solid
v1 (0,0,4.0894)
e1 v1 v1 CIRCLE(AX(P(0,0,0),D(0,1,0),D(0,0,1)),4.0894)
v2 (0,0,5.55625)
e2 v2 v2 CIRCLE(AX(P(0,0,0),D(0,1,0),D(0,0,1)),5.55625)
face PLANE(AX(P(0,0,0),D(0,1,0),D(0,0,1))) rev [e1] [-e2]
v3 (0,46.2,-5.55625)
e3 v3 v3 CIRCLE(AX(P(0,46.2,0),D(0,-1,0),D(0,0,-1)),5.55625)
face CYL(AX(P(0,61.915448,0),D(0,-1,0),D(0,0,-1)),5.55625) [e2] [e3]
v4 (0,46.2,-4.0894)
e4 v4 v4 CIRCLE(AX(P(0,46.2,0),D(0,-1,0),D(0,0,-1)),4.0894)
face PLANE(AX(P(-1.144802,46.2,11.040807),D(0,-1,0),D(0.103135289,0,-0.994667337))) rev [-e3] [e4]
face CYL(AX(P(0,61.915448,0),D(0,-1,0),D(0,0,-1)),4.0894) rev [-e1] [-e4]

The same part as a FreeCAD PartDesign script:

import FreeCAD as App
import Part
import Sketcher
Q = App.Units.Quantity

doc = App.newDocument("Part")
params = doc.addObject("Spreadsheet::Sheet", "Params")
for row, (alias, value) in enumerate([
    ("sketch1_diameter", "0.4375 in"),
    ("sketch1_diameter2", "0.322 in"),
    ("pad1_length", "46.2 mm"),
], start=1):
    params.set(f"A{row}", alias)
    params.set(f"B{row}", "=" + value)
    params.setAlias(f"B{row}", alias)

body = doc.addObject("PartDesign::Body", "Body")

# Sketch on XZ plane
sketch1 = body.newObject("Sketcher::SketchObject", "Sketch")
sketch1.AttachmentSupport = (doc.getObject("XZ_Plane"), [""])
sketch1.MapMode = "FlatFace"
sketch1.addGeometry(Part.Circle(App.Vector(0, 0, 0), App.Vector(0, 0, 1), 5.6), False)
sketch1.addGeometry(Part.Circle(App.Vector(0, 0, 0), App.Vector(0, 0, 1), 4.1), False)
sketch1.addConstraint(Sketcher.Constraint("Coincident", 0, 3, -1, 1))
sketch1.addConstraint(Sketcher.Constraint("Coincident", 1, 3, -1, 1))
sketch1.addConstraint(Sketcher.Constraint("Diameter", 0, Q("0.4375 in")))
sketch1.addConstraint(Sketcher.Constraint("Diameter", 1, Q("0.322 in")))
sketch1.setExpression("Constraints[2]", "Params.sketch1_diameter")
sketch1.setExpression("Constraints[3]", "Params.sketch1_diameter2")
pad1 = body.newObject("PartDesign::Pad", "Pad")
pad1.Profile = sketch1
pad1.setExpression("Length", "Params.pad1_length")
pad1.Reversed = True

doc.recompute()
